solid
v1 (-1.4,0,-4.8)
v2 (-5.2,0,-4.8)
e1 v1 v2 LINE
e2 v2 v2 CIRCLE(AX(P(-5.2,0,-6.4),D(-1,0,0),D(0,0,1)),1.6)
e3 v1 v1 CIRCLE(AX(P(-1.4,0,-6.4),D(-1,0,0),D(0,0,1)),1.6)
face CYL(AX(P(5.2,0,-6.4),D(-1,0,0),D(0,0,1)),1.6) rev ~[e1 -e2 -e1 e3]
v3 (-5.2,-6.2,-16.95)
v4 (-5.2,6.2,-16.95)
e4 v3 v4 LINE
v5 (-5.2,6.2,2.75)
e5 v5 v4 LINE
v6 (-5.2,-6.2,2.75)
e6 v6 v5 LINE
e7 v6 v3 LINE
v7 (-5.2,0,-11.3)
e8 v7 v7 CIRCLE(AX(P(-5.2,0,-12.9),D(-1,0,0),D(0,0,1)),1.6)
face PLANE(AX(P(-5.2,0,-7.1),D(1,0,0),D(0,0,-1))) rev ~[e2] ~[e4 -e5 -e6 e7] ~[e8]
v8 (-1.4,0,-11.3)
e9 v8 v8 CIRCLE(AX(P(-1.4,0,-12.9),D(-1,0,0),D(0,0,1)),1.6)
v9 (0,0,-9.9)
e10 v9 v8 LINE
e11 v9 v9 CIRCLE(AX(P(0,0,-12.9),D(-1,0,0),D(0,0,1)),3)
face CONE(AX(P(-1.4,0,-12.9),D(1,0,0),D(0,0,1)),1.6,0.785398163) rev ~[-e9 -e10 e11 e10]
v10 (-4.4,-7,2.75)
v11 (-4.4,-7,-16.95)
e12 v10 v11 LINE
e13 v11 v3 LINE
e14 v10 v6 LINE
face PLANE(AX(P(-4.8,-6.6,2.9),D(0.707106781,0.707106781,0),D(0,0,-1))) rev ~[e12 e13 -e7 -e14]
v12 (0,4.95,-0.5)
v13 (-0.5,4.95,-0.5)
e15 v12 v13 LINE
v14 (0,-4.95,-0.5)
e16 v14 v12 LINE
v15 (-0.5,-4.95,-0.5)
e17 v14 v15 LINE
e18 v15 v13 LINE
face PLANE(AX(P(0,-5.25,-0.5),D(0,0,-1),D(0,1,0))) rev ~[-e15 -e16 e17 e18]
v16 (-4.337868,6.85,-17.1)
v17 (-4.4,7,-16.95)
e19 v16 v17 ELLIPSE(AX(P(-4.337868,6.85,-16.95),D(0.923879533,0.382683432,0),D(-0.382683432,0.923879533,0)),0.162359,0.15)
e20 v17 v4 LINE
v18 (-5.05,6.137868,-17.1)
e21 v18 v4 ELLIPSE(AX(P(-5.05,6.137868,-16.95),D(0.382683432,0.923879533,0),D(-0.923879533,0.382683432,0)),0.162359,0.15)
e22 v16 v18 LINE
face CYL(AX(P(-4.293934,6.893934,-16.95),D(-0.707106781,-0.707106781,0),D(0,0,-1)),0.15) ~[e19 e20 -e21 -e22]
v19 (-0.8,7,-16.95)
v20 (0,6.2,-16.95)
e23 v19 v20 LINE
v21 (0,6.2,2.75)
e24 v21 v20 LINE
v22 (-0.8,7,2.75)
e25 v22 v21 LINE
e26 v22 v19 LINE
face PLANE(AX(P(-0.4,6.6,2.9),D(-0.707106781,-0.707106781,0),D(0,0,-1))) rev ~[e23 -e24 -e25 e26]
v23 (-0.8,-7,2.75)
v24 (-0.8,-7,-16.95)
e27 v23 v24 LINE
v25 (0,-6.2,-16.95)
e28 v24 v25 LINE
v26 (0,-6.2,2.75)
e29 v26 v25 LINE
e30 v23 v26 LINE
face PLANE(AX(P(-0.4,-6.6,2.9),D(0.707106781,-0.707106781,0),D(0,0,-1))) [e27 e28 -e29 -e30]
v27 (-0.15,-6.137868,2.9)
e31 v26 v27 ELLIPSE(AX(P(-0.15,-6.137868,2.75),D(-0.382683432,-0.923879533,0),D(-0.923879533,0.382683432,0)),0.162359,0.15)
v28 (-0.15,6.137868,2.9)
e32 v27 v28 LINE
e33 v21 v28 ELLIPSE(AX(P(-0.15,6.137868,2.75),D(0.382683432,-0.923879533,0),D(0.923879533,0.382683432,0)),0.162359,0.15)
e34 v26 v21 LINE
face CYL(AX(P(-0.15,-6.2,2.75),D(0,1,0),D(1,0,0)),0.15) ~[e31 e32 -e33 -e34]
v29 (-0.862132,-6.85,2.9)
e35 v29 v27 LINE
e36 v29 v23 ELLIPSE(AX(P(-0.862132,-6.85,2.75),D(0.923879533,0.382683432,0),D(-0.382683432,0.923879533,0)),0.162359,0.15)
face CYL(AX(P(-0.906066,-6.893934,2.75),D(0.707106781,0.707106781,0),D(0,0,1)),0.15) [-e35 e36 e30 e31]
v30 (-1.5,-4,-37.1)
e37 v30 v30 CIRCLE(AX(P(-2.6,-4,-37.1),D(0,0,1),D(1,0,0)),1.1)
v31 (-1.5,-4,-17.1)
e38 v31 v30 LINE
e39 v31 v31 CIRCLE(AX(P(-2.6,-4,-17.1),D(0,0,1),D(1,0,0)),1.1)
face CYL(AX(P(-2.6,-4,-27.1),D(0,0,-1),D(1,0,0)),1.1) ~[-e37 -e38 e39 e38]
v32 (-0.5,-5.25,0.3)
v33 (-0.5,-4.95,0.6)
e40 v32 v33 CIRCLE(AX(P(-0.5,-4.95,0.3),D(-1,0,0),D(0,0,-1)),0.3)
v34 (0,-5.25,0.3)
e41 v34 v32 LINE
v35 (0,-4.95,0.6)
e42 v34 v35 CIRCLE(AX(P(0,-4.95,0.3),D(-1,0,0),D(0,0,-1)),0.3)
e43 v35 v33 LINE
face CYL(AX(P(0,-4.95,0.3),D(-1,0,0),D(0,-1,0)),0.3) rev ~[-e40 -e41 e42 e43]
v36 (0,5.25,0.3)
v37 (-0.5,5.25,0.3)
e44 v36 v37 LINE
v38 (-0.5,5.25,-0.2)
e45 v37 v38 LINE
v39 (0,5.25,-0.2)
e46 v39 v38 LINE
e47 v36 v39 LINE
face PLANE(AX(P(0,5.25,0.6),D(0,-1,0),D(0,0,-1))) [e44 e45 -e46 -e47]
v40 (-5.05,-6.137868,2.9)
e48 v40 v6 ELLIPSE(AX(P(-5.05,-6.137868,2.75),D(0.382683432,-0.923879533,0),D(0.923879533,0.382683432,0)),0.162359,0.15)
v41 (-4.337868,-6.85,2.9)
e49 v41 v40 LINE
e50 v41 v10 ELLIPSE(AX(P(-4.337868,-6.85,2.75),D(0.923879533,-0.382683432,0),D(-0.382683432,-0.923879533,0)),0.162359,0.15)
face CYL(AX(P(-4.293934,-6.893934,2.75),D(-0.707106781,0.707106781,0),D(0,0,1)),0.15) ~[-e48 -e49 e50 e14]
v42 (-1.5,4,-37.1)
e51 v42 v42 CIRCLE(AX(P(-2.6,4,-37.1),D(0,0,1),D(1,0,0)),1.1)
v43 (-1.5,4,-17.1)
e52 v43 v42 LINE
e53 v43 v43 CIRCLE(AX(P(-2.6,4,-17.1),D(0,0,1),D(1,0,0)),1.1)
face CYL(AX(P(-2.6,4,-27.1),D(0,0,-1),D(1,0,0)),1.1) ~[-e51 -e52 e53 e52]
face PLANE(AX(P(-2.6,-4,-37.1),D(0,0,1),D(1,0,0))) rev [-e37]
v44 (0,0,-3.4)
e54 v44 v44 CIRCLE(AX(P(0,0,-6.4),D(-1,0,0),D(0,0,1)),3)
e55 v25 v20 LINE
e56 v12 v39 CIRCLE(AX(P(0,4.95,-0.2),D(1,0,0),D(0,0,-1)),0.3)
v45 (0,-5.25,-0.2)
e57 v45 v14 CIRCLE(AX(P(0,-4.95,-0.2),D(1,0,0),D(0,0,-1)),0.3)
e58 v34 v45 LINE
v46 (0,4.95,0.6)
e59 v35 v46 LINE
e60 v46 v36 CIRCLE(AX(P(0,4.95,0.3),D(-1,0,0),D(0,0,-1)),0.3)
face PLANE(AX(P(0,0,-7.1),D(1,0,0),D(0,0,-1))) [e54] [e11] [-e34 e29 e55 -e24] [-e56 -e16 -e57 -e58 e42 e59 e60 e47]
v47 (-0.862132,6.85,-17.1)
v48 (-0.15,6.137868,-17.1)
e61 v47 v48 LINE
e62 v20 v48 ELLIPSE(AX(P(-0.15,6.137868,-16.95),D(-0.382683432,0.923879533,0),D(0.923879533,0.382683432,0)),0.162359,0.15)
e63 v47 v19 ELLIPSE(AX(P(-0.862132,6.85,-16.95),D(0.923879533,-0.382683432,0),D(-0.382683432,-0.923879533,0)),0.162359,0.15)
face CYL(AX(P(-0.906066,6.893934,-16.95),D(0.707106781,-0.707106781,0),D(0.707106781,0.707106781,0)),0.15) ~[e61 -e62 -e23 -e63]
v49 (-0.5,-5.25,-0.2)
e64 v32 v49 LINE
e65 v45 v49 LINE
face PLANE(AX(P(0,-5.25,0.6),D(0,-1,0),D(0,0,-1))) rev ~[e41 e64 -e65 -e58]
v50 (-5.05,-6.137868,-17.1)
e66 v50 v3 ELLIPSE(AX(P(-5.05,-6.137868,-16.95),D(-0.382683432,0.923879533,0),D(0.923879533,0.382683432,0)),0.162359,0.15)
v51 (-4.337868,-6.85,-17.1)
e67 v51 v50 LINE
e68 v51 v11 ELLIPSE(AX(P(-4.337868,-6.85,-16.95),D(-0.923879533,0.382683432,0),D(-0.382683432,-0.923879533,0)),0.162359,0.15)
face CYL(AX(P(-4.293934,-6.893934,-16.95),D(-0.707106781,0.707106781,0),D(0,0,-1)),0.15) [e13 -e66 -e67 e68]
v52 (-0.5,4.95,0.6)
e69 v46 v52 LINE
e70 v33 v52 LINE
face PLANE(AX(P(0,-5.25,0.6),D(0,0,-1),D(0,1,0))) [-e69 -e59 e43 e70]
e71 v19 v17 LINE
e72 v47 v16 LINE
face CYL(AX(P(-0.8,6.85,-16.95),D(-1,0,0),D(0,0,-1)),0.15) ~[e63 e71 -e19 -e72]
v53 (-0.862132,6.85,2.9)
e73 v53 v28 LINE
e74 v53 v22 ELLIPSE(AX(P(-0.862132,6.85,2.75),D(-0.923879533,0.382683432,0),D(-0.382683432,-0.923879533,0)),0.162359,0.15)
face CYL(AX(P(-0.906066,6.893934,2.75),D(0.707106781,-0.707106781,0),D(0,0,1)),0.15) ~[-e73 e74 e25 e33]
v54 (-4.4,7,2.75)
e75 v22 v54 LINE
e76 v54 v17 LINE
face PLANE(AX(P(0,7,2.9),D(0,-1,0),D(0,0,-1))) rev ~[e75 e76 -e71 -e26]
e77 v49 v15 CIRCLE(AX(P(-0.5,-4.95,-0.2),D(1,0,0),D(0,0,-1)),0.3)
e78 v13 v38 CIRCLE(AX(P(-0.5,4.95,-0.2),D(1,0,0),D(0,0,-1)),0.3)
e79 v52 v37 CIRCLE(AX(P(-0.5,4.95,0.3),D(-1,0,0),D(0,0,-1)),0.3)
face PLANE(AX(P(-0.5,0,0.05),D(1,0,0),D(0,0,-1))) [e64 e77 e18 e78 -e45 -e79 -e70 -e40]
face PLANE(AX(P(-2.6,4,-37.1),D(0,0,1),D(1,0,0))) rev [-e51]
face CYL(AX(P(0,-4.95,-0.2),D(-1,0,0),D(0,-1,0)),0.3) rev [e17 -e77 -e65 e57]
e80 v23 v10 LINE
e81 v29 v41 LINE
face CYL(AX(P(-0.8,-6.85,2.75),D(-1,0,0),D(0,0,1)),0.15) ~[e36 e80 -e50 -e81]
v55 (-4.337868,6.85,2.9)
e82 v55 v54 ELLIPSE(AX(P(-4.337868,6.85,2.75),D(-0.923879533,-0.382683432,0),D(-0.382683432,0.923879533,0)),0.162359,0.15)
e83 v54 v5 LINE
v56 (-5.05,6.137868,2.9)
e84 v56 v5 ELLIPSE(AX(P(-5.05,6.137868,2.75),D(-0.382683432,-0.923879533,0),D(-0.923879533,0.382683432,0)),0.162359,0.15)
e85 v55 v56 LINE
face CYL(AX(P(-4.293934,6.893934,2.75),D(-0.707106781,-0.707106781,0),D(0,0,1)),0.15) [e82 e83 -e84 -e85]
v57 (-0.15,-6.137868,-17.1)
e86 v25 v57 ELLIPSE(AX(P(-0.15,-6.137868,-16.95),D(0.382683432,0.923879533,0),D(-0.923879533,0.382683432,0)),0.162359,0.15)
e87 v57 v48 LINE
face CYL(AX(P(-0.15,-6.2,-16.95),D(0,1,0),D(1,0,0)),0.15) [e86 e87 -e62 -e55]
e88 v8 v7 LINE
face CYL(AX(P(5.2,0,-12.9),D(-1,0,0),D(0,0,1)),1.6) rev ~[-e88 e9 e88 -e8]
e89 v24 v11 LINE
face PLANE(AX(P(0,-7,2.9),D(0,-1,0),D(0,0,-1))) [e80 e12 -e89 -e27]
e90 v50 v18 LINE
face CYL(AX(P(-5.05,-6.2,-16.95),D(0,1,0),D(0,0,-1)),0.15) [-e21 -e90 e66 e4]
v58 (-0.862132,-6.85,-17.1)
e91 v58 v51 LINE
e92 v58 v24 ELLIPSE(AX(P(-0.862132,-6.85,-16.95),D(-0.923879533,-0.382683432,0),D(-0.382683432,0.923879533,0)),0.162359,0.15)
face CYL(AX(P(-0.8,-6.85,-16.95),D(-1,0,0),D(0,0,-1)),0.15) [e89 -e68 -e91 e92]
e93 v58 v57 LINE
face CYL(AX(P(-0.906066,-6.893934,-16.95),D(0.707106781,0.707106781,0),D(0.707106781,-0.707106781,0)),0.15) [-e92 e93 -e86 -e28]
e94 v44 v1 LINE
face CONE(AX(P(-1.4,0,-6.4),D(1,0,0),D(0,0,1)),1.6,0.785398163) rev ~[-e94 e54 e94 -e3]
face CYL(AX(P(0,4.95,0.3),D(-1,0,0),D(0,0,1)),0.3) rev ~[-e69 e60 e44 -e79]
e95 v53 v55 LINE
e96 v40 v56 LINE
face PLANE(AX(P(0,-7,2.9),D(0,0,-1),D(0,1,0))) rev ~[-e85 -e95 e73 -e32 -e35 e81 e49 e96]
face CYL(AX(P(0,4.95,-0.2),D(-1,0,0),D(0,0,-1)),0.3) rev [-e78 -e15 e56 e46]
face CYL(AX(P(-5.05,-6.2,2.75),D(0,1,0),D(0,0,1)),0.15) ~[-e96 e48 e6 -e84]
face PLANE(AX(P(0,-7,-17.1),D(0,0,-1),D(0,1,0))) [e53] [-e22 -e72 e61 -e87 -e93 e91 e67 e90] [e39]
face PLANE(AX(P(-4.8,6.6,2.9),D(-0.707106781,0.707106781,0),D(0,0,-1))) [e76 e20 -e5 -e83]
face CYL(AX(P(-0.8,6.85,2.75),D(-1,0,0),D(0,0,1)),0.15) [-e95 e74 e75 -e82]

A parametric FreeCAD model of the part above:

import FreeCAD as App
import Part
import Sketcher
Q = App.Units.Quantity


def edges_at(feature, points):
    """Names of the edges that pass closest to the given points."""
    edges = feature.Shape.Edges
    near = lambda p: min(range(len(edges)), key=lambda i: edges[i].distToShape(Part.Vertex(*p))[0])
    return sorted({f"Edge{near(p) + 1}" for p in points})

doc = App.newDocument("Part")
body = doc.addObject("PartDesign::Body", "Body")

# Sketch on YZ plane
sketch1 = body.newObject("Sketcher::SketchObject", "Sketch")
sketch1.AttachmentSupport = (doc.getObject("YZ_Plane"), [""])
sketch1.MapMode = "FlatFace"
sketch1.addGeometry([
    Part.LineSegment(App.Vector(7, 3, 0), App.Vector(-7, 3, 0)),
    Part.LineSegment(App.Vector(-7, 3, 0), App.Vector(-7, -17, 0)),
    Part.LineSegment(App.Vector(-7, -17, 0), App.Vector(7, -17, 0)),
    Part.LineSegment(App.Vector(7, -17, 0), App.Vector(7, 3, 0)),
], False)
sketch1.addConstraint([
    Sketcher.Constraint("Coincident", 0, 2, 1, 1),
    Sketcher.Constraint("Coincident", 1, 2, 2, 1),
    Sketcher.Constraint("Coincident", 2, 2, 3, 1),
    Sketcher.Constraint("Coincident", 3, 2, 0, 1),
    Sketcher.Constraint("Horizontal", 0),
    Sketcher.Constraint("Vertical", 1),
    Sketcher.Constraint("Horizontal", 2),
    Sketcher.Constraint("Vertical", 3),
    Sketcher.Constraint("DistanceX", 0, 2, 0, 1, Q("14 mm")),
    Sketcher.Constraint("DistanceY", 1, 2, 1, 1, Q("20 mm")),
    Sketcher.Constraint("DistanceX", 0, 2, -1, 1, Q("7 mm")),
    Sketcher.Constraint("DistanceY", -1, 1, 0, 2, Q("2.9 mm")),
])
pad1 = body.newObject("PartDesign::Pad", "Pad")
pad1.Profile = sketch1
pad1.Length = 5.2
pad1.Reversed = True

# Sketch on YZ plane
sketch2 = body.newObject("Sketcher::SketchObject", "Sketch001")
sketch2.AttachmentSupport = (doc.getObject("YZ_Plane"), [""])
sketch2.MapMode = "FlatFace"
sketch2.addGeometry([
    Part.LineSegment(App.Vector(5.2, 0.6, 0), App.Vector(-5.2, 0.6, 0)),
    Part.LineSegment(App.Vector(-5.2, 0.6, 0), App.Vector(-5.2, -0.5, 0)),
    Part.LineSegment(App.Vector(-5.2, -0.5, 0), App.Vector(5.2, -0.5, 0)),
    Part.LineSegment(App.Vector(5.2, -0.5, 0), App.Vector(5.2, 0.6, 0)),
], False)
sketch2.addConstraint([
    Sketcher.Constraint("Coincident", 0, 2, 1, 1),
    Sketcher.Constraint("Coincident", 1, 2, 2, 1),
    Sketcher.Constraint("Coincident", 2, 2, 3, 1),
    Sketcher.Constraint("Coincident", 3, 2, 0, 1),
    Sketcher.Constraint("Horizontal", 0),
    Sketcher.Constraint("Vertical", 1),
    Sketcher.Constraint("Horizontal", 2),
    Sketcher.Constraint("Vertical", 3),
    Sketcher.Constraint("DistanceX", 0, 2, 0, 1, Q("10.5 mm")),
    Sketcher.Constraint("DistanceY", 1, 2, 1, 1, Q("1.1 mm")),
    Sketcher.Constraint("DistanceY", -1, 1, 0, 2, Q("0.6 mm")),
    Sketcher.Constraint("DistanceX", 0, 2, -1, 1, Q("5.25 mm")),
])
pocket1 = body.newObject("PartDesign::Pocket", "Pocket")
pocket1.Profile = sketch2
pocket1.Length = 0.5

# Sketch on XZ plane
sketch3 = body.newObject("Sketcher::SketchObject", "Sketch002")
sketch3.AttachmentSupport = (doc.getObject("XZ_Plane"), [""])
sketch3.MapMode = "FlatFace"
sketch3.AttachmentOffset = App.Placement(App.Vector(0, 0, 4), App.Rotation())
sketch3.addGeometry([
    Part.LineSegment(App.Vector(-2.6, -37.1, 0), App.Vector(-2.6, -17.1, 0)),
    Part.LineSegment(App.Vector(-2.6, -17.1, 0), App.Vector(-1.5, -17.1, 0)),
    Part.LineSegment(App.Vector(-1.5, -17.1, 0), App.Vector(-1.5, -37.1, 0)),
    Part.LineSegment(App.Vector(-1.5, -37.1, 0), App.Vector(-2.6, -37.1, 0)),
], False)
sketch3.addGeometry(Part.LineSegment(App.Vector(-2.6, -37.1, 0), App.Vector(-2.6, -17.1, 0)), True)  # axis
sketch3.addConstraint([
    Sketcher.Constraint("Coincident", 0, 2, 1, 1),
    Sketcher.Constraint("Coincident", 1, 2, 2, 1),
    Sketcher.Constraint("Coincident", 2, 2, 3, 1),
    Sketcher.Constraint("Coincident", 3, 2, 0, 1),
    Sketcher.Constraint("Vertical", 0),
    Sketcher.Constraint("Horizontal", 1),
    Sketcher.Constraint("Vertical", 2),
    Sketcher.Constraint("Horizontal", 3),
    Sketcher.Constraint("Vertical", 4),
    Sketcher.Constraint("Coincident", 4, 1, 3, 2),
    Sketcher.Constraint("Horizontal", 1, 2, 4, 2),
    Sketcher.Constraint("DistanceY", 0, 1, 0, 2, Q("20 mm")),
    Sketcher.Constraint("DistanceX", 1, 1, 1, 2, Q("1.1 mm")),
    Sketcher.Constraint("DistanceX", 0, 2, -1, 1, Q("2.6 mm")),
    Sketcher.Constraint("DistanceY", 0, 2, -1, 1, Q("17.1 mm")),
])
revolution = body.newObject("PartDesign::Revolution", "Revolution")
revolution.Profile = sketch3
revolution.ReferenceAxis = (sketch3, ["Axis0"])
revolution.Angle = 360

# Sketch on XZ plane
sketch4 = body.newObject("Sketcher::SketchObject", "Sketch003")
sketch4.AttachmentSupport = (doc.getObject("XZ_Plane"), [""])
sketch4.MapMode = "FlatFace"
sketch4.AttachmentOffset = App.Placement(App.Vector(0, 0, -4), App.Rotation())
sketch4.addGeometry([
    Part.LineSegment(App.Vector(-2.6, -37.1, 0), App.Vector(-2.6, -17.1, 0)),
    Part.LineSegment(App.Vector(-2.6, -17.1, 0), App.Vector(-1.5, -17.1, 0)),
    Part.LineSegment(App.Vector(-1.5, -17.1, 0), App.Vector(-1.5, -37.1, 0)),
    Part.LineSegment(App.Vector(-1.5, -37.1, 0), App.Vector(-2.6, -37.1, 0)),
], False)
sketch4.addGeometry(Part.LineSegment(App.Vector(-2.6, -37.1, 0), App.Vector(-2.6, -17.1, 0)), True)  # axis
sketch4.addConstraint([
    Sketcher.Constraint("Coincident", 0, 2, 1, 1),
    Sketcher.Constraint("Coincident", 1, 2, 2, 1),
    Sketcher.Constraint("Coincident", 2, 2, 3, 1),
    Sketcher.Constraint("Coincident", 3, 2, 0, 1),
    Sketcher.Constraint("Vertical", 0),
    Sketcher.Constraint("Horizontal", 1),
    Sketcher.Constraint("Vertical", 2),
    Sketcher.Constraint("Horizontal", 3),
    Sketcher.Constraint("Vertical", 4),
    Sketcher.Constraint("Coincident", 4, 1, 3, 2),
    Sketcher.Constraint("Horizontal", 1, 2, 4, 2),
    Sketcher.Constraint("DistanceY", 0, 1, 0, 2, Q("20 mm")),
    Sketcher.Constraint("DistanceX", 1, 1, 1, 2, Q("1.1 mm")),
    Sketcher.Constraint("DistanceX", 0, 2, -1, 1, Q("2.6 mm")),
    Sketcher.Constraint("DistanceY", 0, 2, -1, 1, Q("17.1 mm")),
])
revolution2 = body.newObject("PartDesign::Revolution", "Revolution001")
revolution2.Profile = sketch4
revolution2.ReferenceAxis = (sketch4, ["Axis0"])
revolution2.Angle = 360

# Sketch on YZ plane
sketch5 = body.newObject("Sketcher::SketchObject", "Sketch004")
sketch5.AttachmentSupport = (doc.getObject("YZ_Plane"), [""])
sketch5.MapMode = "FlatFace"
sketch5.addGeometry([
    Part.Circle(App.Vector(0, -12.9, 0), App.Vector(0, 0, 1), 1.6),
    Part.Circle(App.Vector(0, -6.4, 0), App.Vector(0, 0, 1), 1.6),
], False)
sketch5.addConstraint([
    Sketcher.Constraint("Equal", 0, 1),
    Sketcher.Constraint("PointOnObject", 0, 3, -2),
    Sketcher.Constraint("PointOnObject", 1, 3, -2),
    Sketcher.Constraint("Diameter", 0, Q("3.2 mm")),
    Sketcher.Constraint("DistanceY", 0, 3, -1, 1, Q("12.9 mm")),
    Sketcher.Constraint("DistanceY", 1, 3, -1, 1, Q("6.4 mm")),
])
doc.recompute()
hole = body.newObject("PartDesign::Hole", "Hole")
hole.Profile = sketch5
hole.ThreadType = "None"
hole.Diameter = 3.2
hole.DepthType = "Dimension"
hole.Depth = 5.2
hole.DrillPoint = "Flat"
doc.recompute()

chamfer = body.newObject("PartDesign::Chamfer", "Chamfer")
chamfer.Base = (hole, edges_at(hole, [
    (-5.2, 7, -7.1),
    (-5.2, -7, -7.1),
    (0, 7, -7.1),
    (0, -7, -7.1),
]))
chamfer.Size = 0.8
doc.recompute()

chamfer2 = body.newObject("PartDesign::Chamfer", "Chamfer001")
chamfer2.Base = (chamfer, edges_at(chamfer, [(0, 0, -8), (0, 0, -14.5)]))
chamfer2.Size = 1.4
doc.recompute()

fillet = body.newObject("PartDesign::Fillet", "Fillet")
fillet.Base = (chamfer2, edges_at(chamfer2, [
    (0, 0, -17.1),
    (0, 0, 2.9),
    (-2.6, 7, 2.9),
    (-5.2, 0, 2.9),
    (-2.6, -7, 2.9),
    (-4.8, 6.6, 2.9),
    (-4.8, -6.6, 2.9),
    (-0.4, -6.6, 2.9),
    (-0.4, 6.6, 2.9),
    (-2.6, 7, -17.1),
    (-2.6, -7, -17.1),
    (-5.2, 0, -17.1),
    (-4.8, 6.6, -17.1),
    (-4.8, -6.6, -17.1),
    (-0.4, -6.6, -17.1),
    (-0.4, 6.6, -17.1),
]))
fillet.Radius = 0.15
doc.recompute()

fillet2 = body.newObject("PartDesign::Fillet", "Fillet001")
fillet2.Base = (fillet, edges_at(fillet, [
    (-0.25, -5.25, -0.5),
    (-0.25, -5.25, 0.6),
    (-0.25, 5.25, 0.6),
    (-0.25, 5.25, -0.5),
]))
fillet2.Radius = 0.3

doc.recompute()
